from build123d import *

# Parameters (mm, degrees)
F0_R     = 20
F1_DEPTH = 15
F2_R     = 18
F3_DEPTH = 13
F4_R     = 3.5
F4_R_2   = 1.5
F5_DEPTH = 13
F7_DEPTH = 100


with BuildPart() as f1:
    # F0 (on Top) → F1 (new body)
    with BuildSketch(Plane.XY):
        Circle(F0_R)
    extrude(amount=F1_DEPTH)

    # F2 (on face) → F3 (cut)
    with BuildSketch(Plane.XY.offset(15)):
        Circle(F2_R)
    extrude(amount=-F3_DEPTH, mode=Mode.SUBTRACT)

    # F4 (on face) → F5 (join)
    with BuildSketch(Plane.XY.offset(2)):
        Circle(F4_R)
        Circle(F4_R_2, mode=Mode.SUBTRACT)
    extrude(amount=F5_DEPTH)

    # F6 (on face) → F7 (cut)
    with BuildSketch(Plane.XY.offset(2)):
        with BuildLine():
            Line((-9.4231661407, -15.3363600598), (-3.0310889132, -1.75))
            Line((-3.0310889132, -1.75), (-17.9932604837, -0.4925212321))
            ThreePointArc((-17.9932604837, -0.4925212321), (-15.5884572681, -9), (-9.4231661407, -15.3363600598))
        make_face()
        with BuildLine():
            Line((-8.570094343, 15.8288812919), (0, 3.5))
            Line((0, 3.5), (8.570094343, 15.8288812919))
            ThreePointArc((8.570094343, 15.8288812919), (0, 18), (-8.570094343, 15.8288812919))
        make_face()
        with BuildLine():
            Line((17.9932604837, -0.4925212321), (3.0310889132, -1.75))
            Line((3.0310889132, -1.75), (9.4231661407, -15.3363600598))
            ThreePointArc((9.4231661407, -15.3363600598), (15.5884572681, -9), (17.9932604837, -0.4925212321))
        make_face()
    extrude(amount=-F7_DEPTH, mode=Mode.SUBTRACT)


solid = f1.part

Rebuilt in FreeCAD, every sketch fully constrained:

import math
import FreeCAD as App
import Part
import Sketcher

V = App.Vector

doc = App.newDocument("Part")
body = doc.addObject("PartDesign::Body", "Body")

# Sketch on XY plane
sketch1 = body.newObject("Sketcher::SketchObject", "Sketch")
sketch1.AttachmentSupport = (doc.getObject("XY_Plane"), [""])
sketch1.MapMode = "FlatFace"
sketch1.addGeometry(Part.Circle(V(0, 0, 0), V(0, 0, 1), 20), False)
sketch1.addConstraint([
    Sketcher.Constraint("Coincident", 0, 3, -1, 1),
    Sketcher.Constraint("Diameter", 0, 40.0),
])
pad1 = body.newObject("PartDesign::Pad", "Pad")
pad1.Profile = sketch1
pad1.Length = 15

# Sketch on XY plane
sketch2 = body.newObject("Sketcher::SketchObject", "Sketch001")
sketch2.AttachmentSupport = (doc.getObject("XY_Plane"), [""])
sketch2.MapMode = "FlatFace"
sketch2.AttachmentOffset = App.Placement(V(0, 0, 15), App.Rotation())
sketch2.addGeometry(Part.Circle(V(0, 0, 0), V(0, 0, 1), 18), False)
sketch2.addConstraint([
    Sketcher.Constraint("Coincident", 0, 3, -1, 1),
    Sketcher.Constraint("Diameter", 0, 36.0),
])
pocket1 = body.newObject("PartDesign::Pocket", "Pocket")
pocket1.Profile = sketch2
pocket1.Length = 13

# Sketch on XY plane
sketch3 = body.newObject("Sketcher::SketchObject", "Sketch002")
sketch3.AttachmentSupport = (doc.getObject("XY_Plane"), [""])
sketch3.MapMode = "FlatFace"
sketch3.AttachmentOffset = App.Placement(V(0, 0, 2), App.Rotation())
sketch3.addGeometry([
    Part.Circle(V(0, 0, 0), V(0, 0, 1), 3.5),
    Part.Circle(V(0, 0, 0), V(0, 0, 1), 1.5),
], False)
sketch3.addConstraint([
    Sketcher.Constraint("Coincident", 0, 3, -1, 1),
    Sketcher.Constraint("Coincident", 1, 3, -1, 1),
    Sketcher.Constraint("Diameter", 0, 7.0),
    Sketcher.Constraint("Diameter", 1, 3.0),
])
pad2 = body.newObject("PartDesign::Pad", "Pad001")
pad2.Profile = sketch3
pad2.Length = 13

# Sketch on XY plane
sketch4 = body.newObject("Sketcher::SketchObject", "Sketch003")
sketch4.AttachmentSupport = (doc.getObject("XY_Plane"), [""])
sketch4.MapMode = "FlatFace"
sketch4.AttachmentOffset = App.Placement(V(0, 0, 2), App.Rotation())
sketch4.addGeometry([
    Part.LineSegment(V(-9.423166, -15.33636, 0), V(-3.031089, -1.75, 0)),  # 0
    Part.LineSegment(V(-3.031089, -1.75, 0), V(-17.99326, -0.492521, 0)),  # 1
    Part.ArcOfCircle(Part.Circle(V(0, 0, 0), V(0, 0, 1), 18), math.radians(-178.432061), math.radians(-121.567939)),  # 2
    Part.LineSegment(V(-8.570094, 15.828881, 0), V(0, 3.5, 0)),  # 3
    Part.LineSegment(V(0, 3.5, 0), V(8.570094, 15.828881, 0)),  # 4
    Part.ArcOfCircle(Part.Circle(V(0, 0, 0), V(0, 0, 1), 18), math.radians(61.567939), math.radians(118.432061)),  # 5
    Part.LineSegment(V(17.99326, -0.492521, 0), V(3.031089, -1.75, 0)),  # 6
    Part.LineSegment(V(3.031089, -1.75, 0), V(9.423166, -15.33636, 0)),  # 7
    Part.ArcOfCircle(Part.Circle(V(0, 0, 0), V(0, 0, 1), 18), math.radians(-58.432061), math.radians(-1.567939)),  # 8
], False)
sketch4.addConstraint([
    Sketcher.Constraint("Coincident", 0, 2, 1, 1),
    Sketcher.Constraint("Coincident", 1, 2, 2, 1),
    Sketcher.Constraint("Coincident", 2, 2, 0, 1),
    Sketcher.Constraint("Coincident", 3, 2, 4, 1),
    Sketcher.Constraint("Coincident", 4, 2, 5, 1),
    Sketcher.Constraint("Coincident", 5, 2, 3, 1),
    Sketcher.Constraint("Coincident", 6, 2, 7, 1),
    Sketcher.Constraint("Coincident", 7, 2, 8, 1),
    Sketcher.Constraint("Coincident", 8, 2, 6, 1),
    Sketcher.Constraint("Coincident", 2, 3, -1, 1),
    Sketcher.Constraint("Coincident", 5, 3, -1, 1),
    Sketcher.Constraint("Coincident", 8, 3, -1, 1),
    Sketcher.Constraint("Equal", 2, 5),
    Sketcher.Constraint("Equal", 5, 8),
    Sketcher.Constraint("Symmetric", 0, 2, 6, 2, -2),
    Sketcher.Constraint("PointOnObject", 3, 2, -2),
    Sketcher.Constraint("Horizontal", 4, 2, 5, 2),
    Sketcher.Constraint("Horizontal", 2, 2, 7, 2),
    Sketcher.Constraint("Horizontal", 1, 2, 8, 2),
    Sketcher.Constraint("Equal", 0, 1),
    Sketcher.Constraint("Equal", 1, 3),
    Sketcher.Constraint("Radius", 2, 18.0),
    Sketcher.Constraint("DistanceY", -1, 1, 3, 2, 3.5),
    Sketcher.Constraint("DistanceY", 0, 2, -1, 1, 1.75),
    Sketcher.Constraint("Distance", 0, 15.01492),
    Sketcher.Constraint("DistanceX", 0, 2, -1, 1, 3.031089),
])
pocket2 = body.newObject("PartDesign::Pocket", "Pocket001")
pocket2.Profile = sketch4
pocket2.Length = 100

doc.recompute()
